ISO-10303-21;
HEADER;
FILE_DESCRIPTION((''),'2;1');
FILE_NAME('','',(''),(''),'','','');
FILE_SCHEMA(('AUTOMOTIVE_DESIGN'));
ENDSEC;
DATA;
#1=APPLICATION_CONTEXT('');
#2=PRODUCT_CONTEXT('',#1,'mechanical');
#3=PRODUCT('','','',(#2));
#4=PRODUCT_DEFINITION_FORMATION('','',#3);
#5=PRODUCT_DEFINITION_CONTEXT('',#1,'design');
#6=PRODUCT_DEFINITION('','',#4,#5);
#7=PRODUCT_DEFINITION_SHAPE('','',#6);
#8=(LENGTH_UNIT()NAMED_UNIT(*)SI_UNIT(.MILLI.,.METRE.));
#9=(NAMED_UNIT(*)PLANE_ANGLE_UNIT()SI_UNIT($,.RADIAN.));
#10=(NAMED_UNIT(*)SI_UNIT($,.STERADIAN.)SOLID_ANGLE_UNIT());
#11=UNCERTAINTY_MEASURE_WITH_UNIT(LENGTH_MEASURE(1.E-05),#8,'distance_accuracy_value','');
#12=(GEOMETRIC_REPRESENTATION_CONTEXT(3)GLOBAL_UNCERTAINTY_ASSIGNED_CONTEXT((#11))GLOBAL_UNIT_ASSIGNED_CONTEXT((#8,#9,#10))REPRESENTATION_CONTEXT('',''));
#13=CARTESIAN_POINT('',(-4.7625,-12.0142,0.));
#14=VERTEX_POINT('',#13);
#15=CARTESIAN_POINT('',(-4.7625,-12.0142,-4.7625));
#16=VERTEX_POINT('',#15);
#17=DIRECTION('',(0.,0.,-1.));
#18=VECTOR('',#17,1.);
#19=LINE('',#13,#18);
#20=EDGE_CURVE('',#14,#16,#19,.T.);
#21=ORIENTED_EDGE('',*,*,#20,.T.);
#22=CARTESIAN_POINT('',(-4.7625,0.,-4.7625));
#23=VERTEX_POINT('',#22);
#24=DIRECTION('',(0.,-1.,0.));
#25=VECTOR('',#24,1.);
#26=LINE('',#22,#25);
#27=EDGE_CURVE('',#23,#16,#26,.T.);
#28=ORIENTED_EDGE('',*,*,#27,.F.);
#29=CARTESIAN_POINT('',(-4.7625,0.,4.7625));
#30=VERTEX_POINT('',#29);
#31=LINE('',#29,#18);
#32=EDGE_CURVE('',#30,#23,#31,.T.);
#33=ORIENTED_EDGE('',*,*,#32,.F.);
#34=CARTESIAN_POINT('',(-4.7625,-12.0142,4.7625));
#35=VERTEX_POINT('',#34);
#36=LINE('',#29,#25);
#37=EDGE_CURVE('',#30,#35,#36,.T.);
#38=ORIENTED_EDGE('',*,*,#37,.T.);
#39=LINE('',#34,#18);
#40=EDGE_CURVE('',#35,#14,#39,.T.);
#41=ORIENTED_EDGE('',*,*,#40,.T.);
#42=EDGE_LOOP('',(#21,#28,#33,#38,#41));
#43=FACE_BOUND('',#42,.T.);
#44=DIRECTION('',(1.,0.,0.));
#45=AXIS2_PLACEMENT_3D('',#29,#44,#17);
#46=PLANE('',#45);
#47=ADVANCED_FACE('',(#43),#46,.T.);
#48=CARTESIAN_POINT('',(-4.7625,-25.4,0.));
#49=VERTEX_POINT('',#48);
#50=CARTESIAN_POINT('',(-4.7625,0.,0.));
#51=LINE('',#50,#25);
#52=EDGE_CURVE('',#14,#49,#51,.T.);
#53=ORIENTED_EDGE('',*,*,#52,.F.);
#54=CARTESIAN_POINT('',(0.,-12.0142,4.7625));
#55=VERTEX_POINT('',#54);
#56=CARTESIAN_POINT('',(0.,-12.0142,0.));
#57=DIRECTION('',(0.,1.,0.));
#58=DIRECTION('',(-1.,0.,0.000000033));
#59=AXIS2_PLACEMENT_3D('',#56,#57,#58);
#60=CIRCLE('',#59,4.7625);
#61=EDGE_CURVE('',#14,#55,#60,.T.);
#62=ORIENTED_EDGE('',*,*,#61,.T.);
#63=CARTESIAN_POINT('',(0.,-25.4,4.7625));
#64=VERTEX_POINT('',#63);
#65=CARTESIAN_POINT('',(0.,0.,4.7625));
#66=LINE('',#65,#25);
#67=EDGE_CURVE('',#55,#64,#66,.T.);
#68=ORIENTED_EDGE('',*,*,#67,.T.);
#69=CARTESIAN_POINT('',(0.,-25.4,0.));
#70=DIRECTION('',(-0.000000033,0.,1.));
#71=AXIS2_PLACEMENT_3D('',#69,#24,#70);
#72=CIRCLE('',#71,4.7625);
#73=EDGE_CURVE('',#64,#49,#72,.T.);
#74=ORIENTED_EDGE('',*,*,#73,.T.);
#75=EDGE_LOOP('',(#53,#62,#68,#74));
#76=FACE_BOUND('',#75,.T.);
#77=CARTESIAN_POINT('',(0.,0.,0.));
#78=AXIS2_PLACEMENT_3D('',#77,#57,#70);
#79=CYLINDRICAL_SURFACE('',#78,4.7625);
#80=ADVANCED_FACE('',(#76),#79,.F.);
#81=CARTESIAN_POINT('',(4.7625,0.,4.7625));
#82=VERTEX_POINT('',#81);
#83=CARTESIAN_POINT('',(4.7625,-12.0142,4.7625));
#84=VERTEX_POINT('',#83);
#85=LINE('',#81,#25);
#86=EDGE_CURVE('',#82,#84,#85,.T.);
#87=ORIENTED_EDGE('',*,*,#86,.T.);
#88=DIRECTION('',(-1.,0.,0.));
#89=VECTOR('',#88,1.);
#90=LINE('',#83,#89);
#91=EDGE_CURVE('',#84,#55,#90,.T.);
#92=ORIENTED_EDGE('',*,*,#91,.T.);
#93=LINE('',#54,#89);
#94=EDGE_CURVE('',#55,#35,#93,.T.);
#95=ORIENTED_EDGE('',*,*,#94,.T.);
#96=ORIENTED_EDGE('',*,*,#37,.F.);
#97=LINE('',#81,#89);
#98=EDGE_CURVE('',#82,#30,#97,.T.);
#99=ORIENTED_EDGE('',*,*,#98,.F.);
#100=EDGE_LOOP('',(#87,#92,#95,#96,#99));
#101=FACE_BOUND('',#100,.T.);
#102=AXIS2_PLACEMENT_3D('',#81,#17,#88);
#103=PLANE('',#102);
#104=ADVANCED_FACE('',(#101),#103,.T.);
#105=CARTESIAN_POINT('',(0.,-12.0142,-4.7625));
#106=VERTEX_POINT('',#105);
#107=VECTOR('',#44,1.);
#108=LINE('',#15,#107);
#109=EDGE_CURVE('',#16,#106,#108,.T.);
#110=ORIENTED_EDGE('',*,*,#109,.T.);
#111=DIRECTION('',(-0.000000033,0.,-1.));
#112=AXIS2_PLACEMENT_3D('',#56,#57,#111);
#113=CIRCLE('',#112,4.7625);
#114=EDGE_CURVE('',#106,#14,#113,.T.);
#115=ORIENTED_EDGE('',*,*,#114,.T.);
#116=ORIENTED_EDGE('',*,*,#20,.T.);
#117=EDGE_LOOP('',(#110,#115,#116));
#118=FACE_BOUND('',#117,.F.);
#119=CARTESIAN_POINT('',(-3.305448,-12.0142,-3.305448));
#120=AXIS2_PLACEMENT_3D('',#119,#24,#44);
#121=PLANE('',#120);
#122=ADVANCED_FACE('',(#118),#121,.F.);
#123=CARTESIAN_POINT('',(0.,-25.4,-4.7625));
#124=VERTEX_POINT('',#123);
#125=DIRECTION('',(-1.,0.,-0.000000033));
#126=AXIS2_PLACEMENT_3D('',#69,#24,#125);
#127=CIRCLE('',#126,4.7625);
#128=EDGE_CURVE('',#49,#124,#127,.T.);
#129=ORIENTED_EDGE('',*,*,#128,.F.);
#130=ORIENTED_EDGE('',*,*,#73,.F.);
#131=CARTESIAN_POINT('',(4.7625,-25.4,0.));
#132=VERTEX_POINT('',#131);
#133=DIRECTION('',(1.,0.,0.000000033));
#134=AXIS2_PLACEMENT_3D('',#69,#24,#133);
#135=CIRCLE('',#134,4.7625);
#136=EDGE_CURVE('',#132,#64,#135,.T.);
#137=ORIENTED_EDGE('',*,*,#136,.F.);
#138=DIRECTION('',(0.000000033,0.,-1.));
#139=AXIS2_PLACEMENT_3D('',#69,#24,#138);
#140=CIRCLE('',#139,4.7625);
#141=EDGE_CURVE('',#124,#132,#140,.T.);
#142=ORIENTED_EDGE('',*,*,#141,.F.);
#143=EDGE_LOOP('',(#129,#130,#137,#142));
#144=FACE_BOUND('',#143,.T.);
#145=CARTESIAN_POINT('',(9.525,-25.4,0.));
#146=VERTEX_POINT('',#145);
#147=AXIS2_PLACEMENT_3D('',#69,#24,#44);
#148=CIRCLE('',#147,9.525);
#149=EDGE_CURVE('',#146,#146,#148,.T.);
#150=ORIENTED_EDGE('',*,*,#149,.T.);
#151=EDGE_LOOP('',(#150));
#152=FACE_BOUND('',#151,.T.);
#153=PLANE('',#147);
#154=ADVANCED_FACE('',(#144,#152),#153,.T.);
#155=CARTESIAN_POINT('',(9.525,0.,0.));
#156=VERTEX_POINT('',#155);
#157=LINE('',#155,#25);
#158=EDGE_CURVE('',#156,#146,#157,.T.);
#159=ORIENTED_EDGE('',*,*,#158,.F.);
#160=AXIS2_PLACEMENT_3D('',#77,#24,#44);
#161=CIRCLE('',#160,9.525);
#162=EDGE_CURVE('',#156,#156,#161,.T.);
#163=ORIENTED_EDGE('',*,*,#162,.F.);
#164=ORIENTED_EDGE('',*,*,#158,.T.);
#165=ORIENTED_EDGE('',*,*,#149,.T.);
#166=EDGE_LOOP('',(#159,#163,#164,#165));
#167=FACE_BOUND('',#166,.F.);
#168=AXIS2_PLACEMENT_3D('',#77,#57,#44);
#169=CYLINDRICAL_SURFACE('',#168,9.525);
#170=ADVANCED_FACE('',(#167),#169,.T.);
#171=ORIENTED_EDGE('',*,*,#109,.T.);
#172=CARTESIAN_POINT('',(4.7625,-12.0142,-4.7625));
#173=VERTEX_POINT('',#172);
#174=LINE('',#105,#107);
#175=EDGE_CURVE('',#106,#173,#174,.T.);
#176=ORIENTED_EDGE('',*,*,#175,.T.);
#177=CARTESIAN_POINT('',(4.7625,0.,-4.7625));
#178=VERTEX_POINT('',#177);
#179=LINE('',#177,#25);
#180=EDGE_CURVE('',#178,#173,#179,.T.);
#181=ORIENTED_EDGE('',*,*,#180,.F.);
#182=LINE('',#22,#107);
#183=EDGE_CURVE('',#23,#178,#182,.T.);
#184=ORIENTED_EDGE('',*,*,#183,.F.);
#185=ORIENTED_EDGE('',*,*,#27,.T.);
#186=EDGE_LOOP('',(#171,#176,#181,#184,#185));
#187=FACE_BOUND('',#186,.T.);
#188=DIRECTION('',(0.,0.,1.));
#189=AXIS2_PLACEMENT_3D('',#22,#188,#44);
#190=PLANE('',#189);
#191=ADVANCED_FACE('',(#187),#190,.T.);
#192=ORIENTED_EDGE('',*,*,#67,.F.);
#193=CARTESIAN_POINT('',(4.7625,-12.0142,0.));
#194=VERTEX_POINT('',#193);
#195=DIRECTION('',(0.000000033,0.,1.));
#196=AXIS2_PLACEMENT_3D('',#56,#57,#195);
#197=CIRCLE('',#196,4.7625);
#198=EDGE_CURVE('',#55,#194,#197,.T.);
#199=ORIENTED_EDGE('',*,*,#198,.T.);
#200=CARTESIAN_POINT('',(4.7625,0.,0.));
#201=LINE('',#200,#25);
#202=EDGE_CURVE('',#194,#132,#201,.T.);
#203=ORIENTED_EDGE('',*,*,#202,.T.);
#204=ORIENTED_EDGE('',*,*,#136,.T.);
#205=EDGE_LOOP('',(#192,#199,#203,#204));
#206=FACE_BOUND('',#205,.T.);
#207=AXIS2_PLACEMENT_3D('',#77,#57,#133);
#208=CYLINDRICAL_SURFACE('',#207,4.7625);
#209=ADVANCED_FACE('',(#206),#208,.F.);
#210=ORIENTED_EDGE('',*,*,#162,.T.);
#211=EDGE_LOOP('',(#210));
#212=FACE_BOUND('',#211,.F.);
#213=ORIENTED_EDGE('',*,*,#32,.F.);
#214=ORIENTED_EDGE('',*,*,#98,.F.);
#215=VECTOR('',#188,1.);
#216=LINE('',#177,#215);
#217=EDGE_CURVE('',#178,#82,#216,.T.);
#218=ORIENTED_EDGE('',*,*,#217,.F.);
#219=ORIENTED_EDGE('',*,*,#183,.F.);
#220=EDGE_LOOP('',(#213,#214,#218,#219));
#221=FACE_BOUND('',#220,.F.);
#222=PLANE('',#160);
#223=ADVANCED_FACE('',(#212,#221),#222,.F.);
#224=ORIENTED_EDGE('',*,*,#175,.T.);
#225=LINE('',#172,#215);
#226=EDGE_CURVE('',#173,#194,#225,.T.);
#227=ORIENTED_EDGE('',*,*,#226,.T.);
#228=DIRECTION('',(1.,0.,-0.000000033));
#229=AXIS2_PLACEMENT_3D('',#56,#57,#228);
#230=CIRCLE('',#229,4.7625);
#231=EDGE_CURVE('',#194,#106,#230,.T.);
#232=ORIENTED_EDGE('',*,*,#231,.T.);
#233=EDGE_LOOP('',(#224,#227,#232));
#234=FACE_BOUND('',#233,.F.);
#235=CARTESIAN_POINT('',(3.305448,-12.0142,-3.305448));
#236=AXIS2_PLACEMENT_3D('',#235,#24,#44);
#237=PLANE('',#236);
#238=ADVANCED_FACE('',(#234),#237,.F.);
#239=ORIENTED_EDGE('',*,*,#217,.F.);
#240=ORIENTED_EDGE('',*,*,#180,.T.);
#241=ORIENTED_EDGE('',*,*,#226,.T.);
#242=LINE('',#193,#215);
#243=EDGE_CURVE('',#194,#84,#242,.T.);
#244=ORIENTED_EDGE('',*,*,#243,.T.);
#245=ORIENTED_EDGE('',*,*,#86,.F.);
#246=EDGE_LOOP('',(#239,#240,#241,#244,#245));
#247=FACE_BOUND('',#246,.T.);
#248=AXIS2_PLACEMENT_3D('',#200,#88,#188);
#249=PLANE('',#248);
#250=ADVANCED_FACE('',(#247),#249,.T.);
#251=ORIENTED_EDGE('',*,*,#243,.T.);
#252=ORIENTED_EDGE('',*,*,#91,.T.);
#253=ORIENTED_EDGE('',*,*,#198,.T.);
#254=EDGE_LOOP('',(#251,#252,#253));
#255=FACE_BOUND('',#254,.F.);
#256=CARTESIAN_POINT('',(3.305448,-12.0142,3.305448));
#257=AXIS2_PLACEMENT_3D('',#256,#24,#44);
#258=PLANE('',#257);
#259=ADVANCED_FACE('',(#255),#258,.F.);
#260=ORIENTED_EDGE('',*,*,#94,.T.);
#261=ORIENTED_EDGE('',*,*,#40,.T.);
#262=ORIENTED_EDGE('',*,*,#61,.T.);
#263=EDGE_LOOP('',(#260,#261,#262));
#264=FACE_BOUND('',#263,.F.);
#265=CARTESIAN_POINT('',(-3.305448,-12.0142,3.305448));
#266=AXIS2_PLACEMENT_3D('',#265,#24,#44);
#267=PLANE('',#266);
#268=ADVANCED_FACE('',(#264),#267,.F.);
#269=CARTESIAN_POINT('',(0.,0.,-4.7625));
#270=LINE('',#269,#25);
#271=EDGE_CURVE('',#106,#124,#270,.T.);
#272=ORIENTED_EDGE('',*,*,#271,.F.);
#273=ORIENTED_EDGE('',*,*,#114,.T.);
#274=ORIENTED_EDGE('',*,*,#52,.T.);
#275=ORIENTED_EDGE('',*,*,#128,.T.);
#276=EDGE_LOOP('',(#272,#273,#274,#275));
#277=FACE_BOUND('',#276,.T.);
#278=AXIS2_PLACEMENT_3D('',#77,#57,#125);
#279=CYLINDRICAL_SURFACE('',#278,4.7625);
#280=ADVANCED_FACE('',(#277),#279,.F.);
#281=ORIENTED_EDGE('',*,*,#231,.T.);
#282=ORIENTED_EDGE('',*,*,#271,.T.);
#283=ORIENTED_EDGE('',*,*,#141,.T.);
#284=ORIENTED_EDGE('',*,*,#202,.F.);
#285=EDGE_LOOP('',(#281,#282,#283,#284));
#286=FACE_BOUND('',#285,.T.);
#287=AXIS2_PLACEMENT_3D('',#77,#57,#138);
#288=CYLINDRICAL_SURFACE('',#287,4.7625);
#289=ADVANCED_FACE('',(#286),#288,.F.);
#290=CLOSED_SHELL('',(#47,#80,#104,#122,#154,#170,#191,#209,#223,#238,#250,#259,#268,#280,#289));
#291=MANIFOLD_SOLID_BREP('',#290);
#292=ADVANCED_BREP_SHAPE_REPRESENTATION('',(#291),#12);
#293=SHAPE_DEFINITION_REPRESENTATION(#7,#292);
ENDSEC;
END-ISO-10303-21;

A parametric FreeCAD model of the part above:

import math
import FreeCAD as App
import Part
import Sketcher

V = App.Vector
Q = App.Units.Quantity

doc = App.newDocument("Part")
params = doc.addObject("Spreadsheet::Sheet", "Params")
for row, (alias, value) in enumerate([
    ("sketch1_diameter", "0.75 in"),
    ("pad1_length", "1 in"),
    ("sketch2_radius", "0.1875 in"),
    ("pocket1_length", "1 in"),
    ("sketch3_radius", "0.1875 in"),
    ("pocket2_length", "0.473 in"),
], start=1):
    params.set(f"A{row}", alias)
    params.set(f"B{row}", "=" + value)
    params.setAlias(f"B{row}", alias)

body = doc.addObject("PartDesign::Body", "Body")

sketch1 = body.newObject("Sketcher::SketchObject", "Sketch")
sketch1.AttachmentSupport = (doc.getObject("XZ_Plane"), [""])
sketch1.MapMode = "FlatFace"
sketch1.addGeometry(Part.Circle(V(0, 0, 0), V(0, 0, 1), 9.525), False)
sketch1.addConstraint([
    Sketcher.Constraint("Coincident", 0, 3, -1, 1),
    Sketcher.Constraint("Diameter", 0, Q("0.75 in")),
])
sketch1.setExpression("Constraints[1]", "Params.sketch1_diameter")
pad1 = body.newObject("PartDesign::Pad", "Pad")
pad1.Profile = sketch1
pad1.setExpression("Length", "Params.pad1_length")

sketch2 = body.newObject("Sketcher::SketchObject", "Sketch001")
sketch2.AttachmentSupport = (doc.getObject("XZ_Plane"), [""])
sketch2.MapMode = "FlatFace"
sketch2.addGeometry([
    Part.ArcOfCircle(Part.Circle(V(0, 0, 0), V(0, 0, 1), 4.7625), math.radians(0.000002), math.radians(89.999998)),
    Part.ArcOfCircle(Part.Circle(V(0, 0, 0), V(0, 0, 1), 4.7625), math.radians(90.000002), math.radians(179.999998)),
    Part.ArcOfCircle(Part.Circle(V(0, 0, 0), V(0, 0, 1), 4.7625), math.radians(-179.999998), math.radians(-90.000002)),
    Part.ArcOfCircle(Part.Circle(V(0, 0, 0), V(0, 0, 1), 4.7625), math.radians(-89.999998), math.radians(-0.000002)),
], False)
sketch2.addConstraint([
    Sketcher.Constraint("Tangent", 0, 2, 1, 1),
    Sketcher.Constraint("Tangent", 1, 2, 2, 1),
    Sketcher.Constraint("Tangent", 2, 2, 3, 1),
    Sketcher.Constraint("Tangent", 3, 2, 0, 1),
    Sketcher.Constraint("Coincident", 0, 3, -1, 1),
    Sketcher.Constraint("Equal", 0, 1),
    Sketcher.Constraint("PointOnObject", 0, 2, -2),
    Sketcher.Constraint("PointOnObject", 1, 2, -1),
    Sketcher.Constraint("PointOnObject", 2, 2, -2),
    Sketcher.Constraint("PointOnObject", 3, 2, -1),
    Sketcher.Constraint("Radius", 0, Q("0.1875 in")),
])
sketch2.setExpression("Constraints[10]", "Params.sketch2_radius")
pocket1 = body.newObject("PartDesign::Pocket", "Pocket")
pocket1.Profile = sketch2
pocket1.setExpression("Length", "Params.pocket1_length")
pocket1.Reversed = True

sketch3 = body.newObject("Sketcher::SketchObject", "Sketch002")
sketch3.AttachmentSupport = (doc.getObject("XZ_Plane"), [""])
sketch3.MapMode = "FlatFace"
sketch3.addGeometry([
    Part.ArcOfCircle(Part.Circle(V(0, 0, 0), V(0, 0, 1), 4.7625), math.radians(-179.999998), math.radians(-90.000002)),
    Part.LineSegment(V(-4.7625, 0, 0), V(-4.7625, -4.7625, 0)),
    Part.LineSegment(V(-4.7625, -4.7625, 0), V(0, -4.7625, 0)),
    Part.LineSegment(V(4.7625, -4.7625, 0), V(4.7625, 0, 0)),
    Part.ArcOfCircle(Part.Circle(V(0, 0, 0), V(0, 0, 1), 4.7625), math.radians(-89.999998), math.radians(-0.000002)),
    Part.LineSegment(V(0, -4.7625, 0), V(4.7625, -4.7625, 0)),
    Part.LineSegment(V(0, 4.7625, 0), V(-4.7625, 4.7625, 0)),
    Part.LineSegment(V(-4.7625, 4.7625, 0), V(-4.7625, 0, 0)),
    Part.ArcOfCircle(Part.Circle(V(0, 0, 0), V(0, 0, 1), 4.7625), math.radians(90.000002), math.radians(179.999998)),
    Part.LineSegment(V(4.7625, 4.7625, 0), V(0, 4.7625, 0)),
    Part.ArcOfCircle(Part.Circle(V(0, 0, 0), V(0, 0, 1), 4.7625), math.radians(0.000002), math.radians(89.999998)),
    Part.LineSegment(V(4.7625, 0, 0), V(4.7625, 4.7625, 0)),
], False)
sketch3.addConstraint([
    Sketcher.Constraint("Tangent", 0, 1, 1, 1),
    Sketcher.Constraint("Coincident", 1, 2, 2, 1),
    Sketcher.Constraint("Tangent", 2, 2, 0, 2),
    Sketcher.Constraint("Tangent", 3, 2, 4, 2),
    Sketcher.Constraint("Tangent", 4, 1, 5, 1),
    Sketcher.Constraint("Coincident", 5, 2, 3, 1),
    Sketcher.Constraint("Coincident", 6, 2, 7, 1),
    Sketcher.Constraint("Tangent", 7, 2, 8, 2),
    Sketcher.Constraint("Tangent", 8, 1, 6, 1),
    Sketcher.Constraint("Tangent", 9, 2, 10, 2),
    Sketcher.Constraint("Tangent", 10, 1, 11, 1),
    Sketcher.Constraint("Coincident", 11, 2, 9, 1),
    Sketcher.Constraint("Vertical", 1),
    Sketcher.Constraint("Horizontal", 2),
    Sketcher.Constraint("Vertical", 3),
    Sketcher.Constraint("Horizontal", 5),
    Sketcher.Constraint("Horizontal", 6),
    Sketcher.Constraint("Vertical", 7),
    Sketcher.Constraint("Horizontal", 9),
    Sketcher.Constraint("Vertical", 11),
    Sketcher.Constraint("Coincident", 0, 3, -1, 1),
    Sketcher.Constraint("Coincident", 4, 3, -1, 1),
    Sketcher.Constraint("Coincident", 8, 3, -1, 1),
    Sketcher.Constraint("Coincident", 10, 3, -1, 1),
    Sketcher.Constraint("Equal", 0, 4),
    Sketcher.Constraint("Equal", 4, 8),
    Sketcher.Constraint("Equal", 8, 10),
    Sketcher.Constraint("Radius", 0, Q("0.1875 in")),
])
sketch3.setExpression("Constraints[27]", "Params.sketch3_radius")
pocket2 = body.newObject("PartDesign::Pocket", "Pocket001")
pocket2.Profile = sketch3
pocket2.setExpression("Length", "Params.pocket2_length")
pocket2.Reversed = True

doc.recompute()
